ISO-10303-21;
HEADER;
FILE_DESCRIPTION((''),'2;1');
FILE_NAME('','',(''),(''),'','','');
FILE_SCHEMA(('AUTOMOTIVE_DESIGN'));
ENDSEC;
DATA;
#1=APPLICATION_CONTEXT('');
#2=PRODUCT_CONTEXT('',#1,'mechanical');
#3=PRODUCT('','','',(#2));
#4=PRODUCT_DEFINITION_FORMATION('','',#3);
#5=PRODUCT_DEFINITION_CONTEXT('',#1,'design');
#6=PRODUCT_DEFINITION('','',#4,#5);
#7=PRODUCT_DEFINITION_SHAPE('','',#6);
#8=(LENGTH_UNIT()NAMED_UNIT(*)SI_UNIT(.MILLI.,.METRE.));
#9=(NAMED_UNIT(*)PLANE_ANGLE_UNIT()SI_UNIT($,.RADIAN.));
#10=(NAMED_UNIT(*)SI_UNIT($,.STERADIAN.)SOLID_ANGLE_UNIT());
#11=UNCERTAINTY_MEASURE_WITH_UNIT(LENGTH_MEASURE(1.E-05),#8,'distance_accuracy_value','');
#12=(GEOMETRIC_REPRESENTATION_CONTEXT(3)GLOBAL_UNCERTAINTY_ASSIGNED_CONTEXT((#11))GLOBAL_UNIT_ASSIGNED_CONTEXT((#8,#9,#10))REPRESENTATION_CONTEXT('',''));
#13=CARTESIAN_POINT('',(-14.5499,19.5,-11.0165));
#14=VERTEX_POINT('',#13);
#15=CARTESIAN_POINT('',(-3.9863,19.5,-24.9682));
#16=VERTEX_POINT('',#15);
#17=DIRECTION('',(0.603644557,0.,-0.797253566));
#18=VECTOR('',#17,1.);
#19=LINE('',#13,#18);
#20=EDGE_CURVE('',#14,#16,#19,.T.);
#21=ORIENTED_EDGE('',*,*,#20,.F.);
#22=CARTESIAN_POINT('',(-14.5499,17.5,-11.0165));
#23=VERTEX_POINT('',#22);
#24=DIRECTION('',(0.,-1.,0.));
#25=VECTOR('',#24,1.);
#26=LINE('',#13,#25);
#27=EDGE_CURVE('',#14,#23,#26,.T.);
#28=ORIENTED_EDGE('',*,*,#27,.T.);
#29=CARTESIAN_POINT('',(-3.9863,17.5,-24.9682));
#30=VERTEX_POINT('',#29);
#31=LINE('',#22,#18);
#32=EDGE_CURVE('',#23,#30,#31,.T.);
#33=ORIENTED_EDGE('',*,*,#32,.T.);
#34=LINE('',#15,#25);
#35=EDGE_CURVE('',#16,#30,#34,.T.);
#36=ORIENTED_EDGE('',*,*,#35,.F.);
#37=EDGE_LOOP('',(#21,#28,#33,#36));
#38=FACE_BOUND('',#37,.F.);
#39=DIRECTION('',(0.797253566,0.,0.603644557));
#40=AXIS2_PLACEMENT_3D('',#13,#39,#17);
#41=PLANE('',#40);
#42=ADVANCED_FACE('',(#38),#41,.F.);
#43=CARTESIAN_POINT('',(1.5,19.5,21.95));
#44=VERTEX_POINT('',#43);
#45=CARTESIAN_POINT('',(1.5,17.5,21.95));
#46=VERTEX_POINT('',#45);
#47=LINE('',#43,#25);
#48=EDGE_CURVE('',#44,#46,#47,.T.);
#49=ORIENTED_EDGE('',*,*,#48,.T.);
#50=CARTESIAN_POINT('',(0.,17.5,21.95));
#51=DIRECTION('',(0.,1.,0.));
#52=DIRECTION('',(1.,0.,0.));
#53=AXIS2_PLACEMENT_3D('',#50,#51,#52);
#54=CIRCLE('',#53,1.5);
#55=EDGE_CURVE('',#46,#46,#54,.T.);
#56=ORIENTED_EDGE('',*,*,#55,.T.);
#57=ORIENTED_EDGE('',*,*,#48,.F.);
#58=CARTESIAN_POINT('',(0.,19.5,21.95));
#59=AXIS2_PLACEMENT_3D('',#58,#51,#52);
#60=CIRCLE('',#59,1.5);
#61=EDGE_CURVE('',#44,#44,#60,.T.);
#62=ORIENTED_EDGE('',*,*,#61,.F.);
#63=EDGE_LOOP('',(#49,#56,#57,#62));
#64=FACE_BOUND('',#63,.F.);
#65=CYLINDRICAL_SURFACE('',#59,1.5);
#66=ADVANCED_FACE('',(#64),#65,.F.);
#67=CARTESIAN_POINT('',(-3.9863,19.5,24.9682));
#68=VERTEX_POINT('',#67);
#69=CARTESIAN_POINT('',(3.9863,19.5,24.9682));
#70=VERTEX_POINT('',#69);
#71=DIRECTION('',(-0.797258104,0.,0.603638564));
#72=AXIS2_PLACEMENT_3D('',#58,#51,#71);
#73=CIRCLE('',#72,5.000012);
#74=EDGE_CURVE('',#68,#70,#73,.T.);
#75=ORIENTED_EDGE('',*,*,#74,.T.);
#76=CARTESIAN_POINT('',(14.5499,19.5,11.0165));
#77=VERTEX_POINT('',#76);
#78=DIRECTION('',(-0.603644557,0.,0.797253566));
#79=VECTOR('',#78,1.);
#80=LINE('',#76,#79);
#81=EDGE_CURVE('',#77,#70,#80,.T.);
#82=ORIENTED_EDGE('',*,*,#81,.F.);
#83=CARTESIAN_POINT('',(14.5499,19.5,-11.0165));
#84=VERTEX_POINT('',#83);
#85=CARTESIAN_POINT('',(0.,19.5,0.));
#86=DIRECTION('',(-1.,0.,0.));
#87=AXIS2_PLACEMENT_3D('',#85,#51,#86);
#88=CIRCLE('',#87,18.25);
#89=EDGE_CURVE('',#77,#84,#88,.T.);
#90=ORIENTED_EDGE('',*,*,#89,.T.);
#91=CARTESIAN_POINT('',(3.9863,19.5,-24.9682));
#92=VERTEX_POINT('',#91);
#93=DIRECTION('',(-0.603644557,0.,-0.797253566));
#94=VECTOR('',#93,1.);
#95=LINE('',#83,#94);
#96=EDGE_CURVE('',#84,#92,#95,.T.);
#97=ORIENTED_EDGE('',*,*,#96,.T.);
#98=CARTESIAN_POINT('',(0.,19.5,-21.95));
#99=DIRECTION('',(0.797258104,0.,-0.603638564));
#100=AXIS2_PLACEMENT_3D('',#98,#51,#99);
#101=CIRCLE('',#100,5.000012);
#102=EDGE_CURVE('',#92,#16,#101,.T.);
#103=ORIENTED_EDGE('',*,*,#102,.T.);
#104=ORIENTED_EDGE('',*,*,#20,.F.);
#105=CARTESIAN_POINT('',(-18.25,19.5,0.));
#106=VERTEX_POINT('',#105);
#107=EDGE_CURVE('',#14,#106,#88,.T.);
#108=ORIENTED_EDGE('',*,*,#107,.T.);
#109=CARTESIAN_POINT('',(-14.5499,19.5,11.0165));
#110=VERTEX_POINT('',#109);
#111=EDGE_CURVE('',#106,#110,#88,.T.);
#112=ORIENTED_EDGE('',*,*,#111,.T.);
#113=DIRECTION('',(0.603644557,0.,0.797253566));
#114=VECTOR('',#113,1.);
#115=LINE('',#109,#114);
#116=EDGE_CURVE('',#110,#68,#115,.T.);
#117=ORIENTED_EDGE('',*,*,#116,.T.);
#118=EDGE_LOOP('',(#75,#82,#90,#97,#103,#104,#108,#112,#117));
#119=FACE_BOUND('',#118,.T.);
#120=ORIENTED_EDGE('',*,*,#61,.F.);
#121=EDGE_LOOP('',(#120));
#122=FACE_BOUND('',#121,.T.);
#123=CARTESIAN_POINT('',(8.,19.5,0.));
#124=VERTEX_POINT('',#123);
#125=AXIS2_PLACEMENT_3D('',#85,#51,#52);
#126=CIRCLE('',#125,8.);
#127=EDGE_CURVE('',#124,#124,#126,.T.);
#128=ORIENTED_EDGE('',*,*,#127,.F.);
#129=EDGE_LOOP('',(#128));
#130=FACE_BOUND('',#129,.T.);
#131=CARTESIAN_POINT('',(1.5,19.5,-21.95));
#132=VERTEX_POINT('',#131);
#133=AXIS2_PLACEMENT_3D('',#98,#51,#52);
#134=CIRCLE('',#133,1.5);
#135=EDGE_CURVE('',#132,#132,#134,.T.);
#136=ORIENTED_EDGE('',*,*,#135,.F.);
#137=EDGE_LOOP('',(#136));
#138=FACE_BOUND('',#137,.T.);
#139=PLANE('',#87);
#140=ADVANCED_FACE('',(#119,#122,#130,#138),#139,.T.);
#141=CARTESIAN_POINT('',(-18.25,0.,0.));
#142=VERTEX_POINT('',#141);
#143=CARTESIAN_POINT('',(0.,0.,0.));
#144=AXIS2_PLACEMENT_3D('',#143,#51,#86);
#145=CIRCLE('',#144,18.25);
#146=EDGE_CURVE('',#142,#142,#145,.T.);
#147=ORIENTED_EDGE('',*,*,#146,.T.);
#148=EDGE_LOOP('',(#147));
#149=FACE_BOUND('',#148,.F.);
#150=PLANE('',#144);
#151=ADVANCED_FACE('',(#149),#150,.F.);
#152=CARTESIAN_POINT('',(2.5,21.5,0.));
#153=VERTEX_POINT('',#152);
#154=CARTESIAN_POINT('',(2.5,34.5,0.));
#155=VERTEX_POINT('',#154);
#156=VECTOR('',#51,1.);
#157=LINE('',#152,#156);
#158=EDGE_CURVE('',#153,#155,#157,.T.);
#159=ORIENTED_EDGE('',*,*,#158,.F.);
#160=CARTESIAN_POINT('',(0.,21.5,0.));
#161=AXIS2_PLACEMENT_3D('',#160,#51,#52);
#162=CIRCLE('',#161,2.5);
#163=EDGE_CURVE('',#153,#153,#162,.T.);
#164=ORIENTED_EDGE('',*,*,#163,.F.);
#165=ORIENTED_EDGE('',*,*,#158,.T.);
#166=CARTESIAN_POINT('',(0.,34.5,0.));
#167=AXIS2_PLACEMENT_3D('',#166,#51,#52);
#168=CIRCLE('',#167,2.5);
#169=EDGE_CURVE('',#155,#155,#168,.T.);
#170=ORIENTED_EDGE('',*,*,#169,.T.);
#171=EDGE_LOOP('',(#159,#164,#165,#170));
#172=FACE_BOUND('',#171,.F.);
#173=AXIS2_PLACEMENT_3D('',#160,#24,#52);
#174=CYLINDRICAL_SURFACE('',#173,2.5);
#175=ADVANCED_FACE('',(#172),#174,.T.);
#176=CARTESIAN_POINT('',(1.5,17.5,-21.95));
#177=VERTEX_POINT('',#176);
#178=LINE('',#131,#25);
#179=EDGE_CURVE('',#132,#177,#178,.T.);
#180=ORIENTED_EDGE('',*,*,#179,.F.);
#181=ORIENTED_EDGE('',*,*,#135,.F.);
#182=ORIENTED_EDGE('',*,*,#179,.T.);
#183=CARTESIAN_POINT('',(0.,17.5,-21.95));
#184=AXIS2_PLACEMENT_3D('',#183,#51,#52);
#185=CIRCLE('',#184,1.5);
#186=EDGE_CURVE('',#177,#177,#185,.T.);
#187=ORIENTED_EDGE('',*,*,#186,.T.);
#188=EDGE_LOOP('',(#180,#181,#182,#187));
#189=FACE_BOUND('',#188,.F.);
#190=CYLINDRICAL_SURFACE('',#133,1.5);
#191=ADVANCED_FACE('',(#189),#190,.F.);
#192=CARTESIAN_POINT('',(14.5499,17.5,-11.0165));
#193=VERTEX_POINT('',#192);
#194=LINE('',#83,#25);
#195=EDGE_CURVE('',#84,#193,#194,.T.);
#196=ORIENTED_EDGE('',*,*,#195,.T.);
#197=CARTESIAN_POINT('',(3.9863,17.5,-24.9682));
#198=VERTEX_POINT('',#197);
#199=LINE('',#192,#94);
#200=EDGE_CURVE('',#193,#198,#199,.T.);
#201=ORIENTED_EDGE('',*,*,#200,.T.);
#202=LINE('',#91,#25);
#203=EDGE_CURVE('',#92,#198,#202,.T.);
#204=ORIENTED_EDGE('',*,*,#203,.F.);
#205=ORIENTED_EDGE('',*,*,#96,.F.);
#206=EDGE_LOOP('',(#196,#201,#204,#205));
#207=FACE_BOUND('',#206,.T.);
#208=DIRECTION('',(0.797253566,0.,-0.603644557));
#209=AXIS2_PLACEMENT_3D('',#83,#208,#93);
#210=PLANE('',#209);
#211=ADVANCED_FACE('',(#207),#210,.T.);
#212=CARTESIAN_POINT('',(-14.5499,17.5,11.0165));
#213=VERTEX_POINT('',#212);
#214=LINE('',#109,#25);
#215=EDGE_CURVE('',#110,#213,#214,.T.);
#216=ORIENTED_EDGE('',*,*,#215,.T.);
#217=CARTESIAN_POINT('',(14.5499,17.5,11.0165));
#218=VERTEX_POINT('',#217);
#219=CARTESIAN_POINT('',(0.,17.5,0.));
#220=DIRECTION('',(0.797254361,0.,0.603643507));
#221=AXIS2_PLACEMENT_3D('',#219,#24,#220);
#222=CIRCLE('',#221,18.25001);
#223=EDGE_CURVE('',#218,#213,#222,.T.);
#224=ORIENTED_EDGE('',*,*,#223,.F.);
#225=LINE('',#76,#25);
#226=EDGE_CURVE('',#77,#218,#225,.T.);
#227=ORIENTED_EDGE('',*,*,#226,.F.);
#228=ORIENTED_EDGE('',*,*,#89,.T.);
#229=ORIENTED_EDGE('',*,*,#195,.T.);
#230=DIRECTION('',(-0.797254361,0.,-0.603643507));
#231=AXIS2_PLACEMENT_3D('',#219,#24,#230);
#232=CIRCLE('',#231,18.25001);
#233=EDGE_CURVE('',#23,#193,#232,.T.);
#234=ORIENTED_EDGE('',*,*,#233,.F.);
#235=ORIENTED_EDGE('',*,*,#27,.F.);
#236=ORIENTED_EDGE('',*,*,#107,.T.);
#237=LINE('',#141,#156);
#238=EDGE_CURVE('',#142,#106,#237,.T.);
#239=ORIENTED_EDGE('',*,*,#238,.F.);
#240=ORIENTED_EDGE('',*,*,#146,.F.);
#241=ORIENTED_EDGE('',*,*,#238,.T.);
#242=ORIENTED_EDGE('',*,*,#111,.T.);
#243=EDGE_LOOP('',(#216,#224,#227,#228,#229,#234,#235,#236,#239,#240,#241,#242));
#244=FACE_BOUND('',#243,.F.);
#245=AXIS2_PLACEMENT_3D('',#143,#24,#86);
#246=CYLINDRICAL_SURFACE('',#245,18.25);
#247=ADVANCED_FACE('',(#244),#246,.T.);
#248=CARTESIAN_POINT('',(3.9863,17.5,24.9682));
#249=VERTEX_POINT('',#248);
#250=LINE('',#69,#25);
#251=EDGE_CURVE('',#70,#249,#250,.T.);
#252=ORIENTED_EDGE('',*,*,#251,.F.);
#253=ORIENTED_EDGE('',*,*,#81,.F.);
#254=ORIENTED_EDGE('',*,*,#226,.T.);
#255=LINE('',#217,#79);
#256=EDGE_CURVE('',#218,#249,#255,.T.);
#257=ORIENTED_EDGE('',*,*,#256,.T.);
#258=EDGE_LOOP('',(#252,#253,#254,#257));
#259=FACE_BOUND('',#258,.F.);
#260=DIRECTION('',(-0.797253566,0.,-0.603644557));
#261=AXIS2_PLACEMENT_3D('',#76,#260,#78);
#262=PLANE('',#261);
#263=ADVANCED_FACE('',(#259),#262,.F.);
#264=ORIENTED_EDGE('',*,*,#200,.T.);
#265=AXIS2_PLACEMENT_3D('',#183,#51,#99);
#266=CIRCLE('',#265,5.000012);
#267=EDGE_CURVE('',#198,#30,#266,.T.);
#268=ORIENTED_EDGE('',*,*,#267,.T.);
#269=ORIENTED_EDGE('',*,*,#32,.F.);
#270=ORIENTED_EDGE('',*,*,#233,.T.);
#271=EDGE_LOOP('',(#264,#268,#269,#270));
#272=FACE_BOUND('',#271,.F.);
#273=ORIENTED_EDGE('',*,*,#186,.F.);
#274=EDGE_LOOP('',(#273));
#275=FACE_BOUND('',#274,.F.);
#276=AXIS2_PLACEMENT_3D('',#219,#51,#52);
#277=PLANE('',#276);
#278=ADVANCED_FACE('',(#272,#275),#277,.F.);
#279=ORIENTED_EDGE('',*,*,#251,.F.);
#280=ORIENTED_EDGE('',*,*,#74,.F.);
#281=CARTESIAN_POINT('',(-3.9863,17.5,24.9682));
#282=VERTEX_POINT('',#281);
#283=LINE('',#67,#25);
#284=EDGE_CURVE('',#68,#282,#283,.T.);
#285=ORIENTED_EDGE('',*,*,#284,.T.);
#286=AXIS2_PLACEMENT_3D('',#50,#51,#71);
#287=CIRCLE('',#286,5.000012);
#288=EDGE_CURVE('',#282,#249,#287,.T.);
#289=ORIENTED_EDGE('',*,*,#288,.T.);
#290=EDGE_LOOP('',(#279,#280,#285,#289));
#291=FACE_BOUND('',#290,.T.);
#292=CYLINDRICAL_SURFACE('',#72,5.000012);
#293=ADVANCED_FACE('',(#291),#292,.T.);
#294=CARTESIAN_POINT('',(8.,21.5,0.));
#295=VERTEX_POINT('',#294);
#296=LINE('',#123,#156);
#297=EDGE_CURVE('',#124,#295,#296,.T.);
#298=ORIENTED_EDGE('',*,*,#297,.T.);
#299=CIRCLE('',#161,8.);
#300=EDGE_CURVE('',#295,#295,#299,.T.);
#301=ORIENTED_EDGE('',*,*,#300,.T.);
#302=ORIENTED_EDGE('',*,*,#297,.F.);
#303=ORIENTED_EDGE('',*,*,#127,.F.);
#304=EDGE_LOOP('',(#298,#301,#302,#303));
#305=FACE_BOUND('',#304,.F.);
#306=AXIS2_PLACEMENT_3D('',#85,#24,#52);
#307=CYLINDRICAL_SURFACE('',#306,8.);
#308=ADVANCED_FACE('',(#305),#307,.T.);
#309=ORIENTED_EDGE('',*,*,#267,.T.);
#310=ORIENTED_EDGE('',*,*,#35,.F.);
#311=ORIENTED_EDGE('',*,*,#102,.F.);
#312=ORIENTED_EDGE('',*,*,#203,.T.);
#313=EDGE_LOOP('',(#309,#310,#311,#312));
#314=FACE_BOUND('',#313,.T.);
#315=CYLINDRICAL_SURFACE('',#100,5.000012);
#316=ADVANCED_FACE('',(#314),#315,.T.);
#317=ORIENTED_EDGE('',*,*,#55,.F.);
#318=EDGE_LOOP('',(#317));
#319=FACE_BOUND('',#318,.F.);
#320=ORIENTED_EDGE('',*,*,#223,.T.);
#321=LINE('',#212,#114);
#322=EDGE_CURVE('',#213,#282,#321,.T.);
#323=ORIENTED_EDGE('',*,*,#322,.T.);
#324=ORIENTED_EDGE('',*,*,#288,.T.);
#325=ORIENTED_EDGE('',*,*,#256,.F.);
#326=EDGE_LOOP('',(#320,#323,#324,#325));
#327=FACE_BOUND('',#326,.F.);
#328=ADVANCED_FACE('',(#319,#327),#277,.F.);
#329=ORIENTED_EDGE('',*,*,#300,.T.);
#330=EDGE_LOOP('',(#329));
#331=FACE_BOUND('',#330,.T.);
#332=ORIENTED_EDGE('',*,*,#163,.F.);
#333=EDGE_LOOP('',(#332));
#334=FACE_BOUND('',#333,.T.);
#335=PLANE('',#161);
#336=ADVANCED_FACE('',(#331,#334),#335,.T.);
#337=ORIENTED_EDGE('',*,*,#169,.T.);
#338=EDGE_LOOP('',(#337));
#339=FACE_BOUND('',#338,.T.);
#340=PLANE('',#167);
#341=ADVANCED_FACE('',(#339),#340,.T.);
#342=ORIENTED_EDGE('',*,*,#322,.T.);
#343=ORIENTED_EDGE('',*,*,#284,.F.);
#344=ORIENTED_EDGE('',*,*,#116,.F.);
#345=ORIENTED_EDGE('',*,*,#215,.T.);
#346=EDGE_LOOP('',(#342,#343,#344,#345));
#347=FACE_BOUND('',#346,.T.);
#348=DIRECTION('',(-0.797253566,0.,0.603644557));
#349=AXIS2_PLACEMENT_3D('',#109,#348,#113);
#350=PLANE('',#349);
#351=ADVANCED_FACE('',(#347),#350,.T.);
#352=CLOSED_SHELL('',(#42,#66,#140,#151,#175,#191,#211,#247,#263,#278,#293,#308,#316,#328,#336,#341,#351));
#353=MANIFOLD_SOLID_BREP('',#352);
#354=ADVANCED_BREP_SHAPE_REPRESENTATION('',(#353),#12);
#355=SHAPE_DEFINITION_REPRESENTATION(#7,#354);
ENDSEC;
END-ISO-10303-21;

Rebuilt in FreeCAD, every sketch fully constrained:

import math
import FreeCAD as App
import Part
import Sketcher
Q = App.Units.Quantity

doc = App.newDocument("Part")
params = doc.addObject("Spreadsheet::Sheet", "Params")
for row, (alias, value) in enumerate([
    ("sketch1_diameter", "36.5 mm"),
    ("pad1_length", "19.5 mm"),
    ("sketch2_diameter", "16 mm"),
    ("pad2_length", "2 mm"),
    ("sketch3_diameter", "3 mm"),
    ("sketch3_radius", "5 mm"),
    ("sketch3_radius2", "18.25 mm"),
    ("pad3_length", "2 mm"),
    ("sketch4_diameter", "5 mm"),
    ("pad4_length", "13 mm"),
], start=1):
    params.set(f"A{row}", alias)
    params.set(f"B{row}", "=" + value)
    params.setAlias(f"B{row}", alias)

body = doc.addObject("PartDesign::Body", "Body")

# Sketch on XZ plane
sketch1 = body.newObject("Sketcher::SketchObject", "Sketch")
sketch1.AttachmentSupport = (doc.getObject("XZ_Plane"), [""])
sketch1.MapMode = "FlatFace"
sketch1.addGeometry(Part.Circle(App.Vector(0, 0, 0), App.Vector(0, 0, 1), 18.25), False)
sketch1.addConstraint(Sketcher.Constraint("Coincident", 0, 3, -1, 1))
sketch1.addConstraint(Sketcher.Constraint("Diameter", 0, Q("36.5 mm")))
sketch1.setExpression("Constraints[1]", "Params.sketch1_diameter")
pad1 = body.newObject("PartDesign::Pad", "Pad")
pad1.Profile = sketch1
pad1.setExpression("Length", "Params.pad1_length")
pad1.Reversed = True

# Sketch on XZ plane
sketch2 = body.newObject("Sketcher::SketchObject", "Sketch001")
sketch2.AttachmentSupport = (doc.getObject("XZ_Plane"), [""])
sketch2.MapMode = "FlatFace"
sketch2.AttachmentOffset = App.Placement(App.Vector(0, 0, -19.5), App.Rotation())
sketch2.addGeometry(Part.Circle(App.Vector(0, 0, 0), App.Vector(0, 0, 1), 8), False)
sketch2.addConstraint(Sketcher.Constraint("Coincident", 0, 3, -1, 1))
sketch2.addConstraint(Sketcher.Constraint("Diameter", 0, Q("16 mm")))
sketch2.setExpression("Constraints[1]", "Params.sketch2_diameter")
pad2 = body.newObject("PartDesign::Pad", "Pad001")
pad2.Profile = sketch2
pad2.setExpression("Length", "Params.pad2_length")
pad2.Reversed = True

# Sketch on XZ plane
sketch3 = body.newObject("Sketcher::SketchObject", "Sketch002")
sketch3.AttachmentSupport = (doc.getObject("XZ_Plane"), [""])
sketch3.MapMode = "FlatFace"
sketch3.AttachmentOffset = App.Placement(App.Vector(0, 0, -19.5), App.Rotation())
sketch3.addGeometry(Part.LineSegment(App.Vector(14.5499, -11.0165, 0), App.Vector(3.9863, -24.9682, 0)), False)
sketch3.addGeometry(Part.ArcOfCircle(Part.Circle(App.Vector(0, -21.95, 0), App.Vector(0, 0, 1), 5.000012), math.radians(-142.869063), math.radians(-37.130937)), False)
sketch3.addGeometry(Part.LineSegment(App.Vector(-3.9863, -24.9682, 0), App.Vector(-14.5499, -11.0165, 0)), False)
sketch3.addGeometry(Part.ArcOfCircle(Part.Circle(App.Vector(0, 0, 0), App.Vector(0, 0, 1), 18.25001), math.radians(-142.868707), math.radians(-37.131293)), False)
sketch3.addGeometry(Part.Circle(App.Vector(0, -21.95, 0), App.Vector(0, 0, 1), 1.5), False)
sketch3.addGeometry(Part.ArcOfCircle(Part.Circle(App.Vector(0, 0, 0), App.Vector(0, 0, 1), 18.25001), math.radians(37.131293), math.radians(142.868707)), False)
sketch3.addGeometry(Part.LineSegment(App.Vector(-14.5499, 11.0165, 0), App.Vector(-3.9863, 24.9682, 0)), False)
sketch3.addGeometry(Part.ArcOfCircle(Part.Circle(App.Vector(0, 21.95, 0), App.Vector(0, 0, 1), 5.000012), math.radians(37.130937), math.radians(142.869063)), False)
sketch3.addGeometry(Part.LineSegment(App.Vector(3.9863, 24.9682, 0), App.Vector(14.5499, 11.0165, 0)), False)
sketch3.addGeometry(Part.Circle(App.Vector(0, 21.95, 0), App.Vector(0, 0, 1), 1.5), False)
sketch3.addConstraint(Sketcher.Constraint("Tangent", 0, 2, 1, 2))
sketch3.addConstraint(Sketcher.Constraint("Tangent", 1, 1, 2, 1))
sketch3.addConstraint(Sketcher.Constraint("Tangent", 2, 2, 3, 1))
sketch3.addConstraint(Sketcher.Constraint("Tangent", 3, 2, 0, 1))
sketch3.addConstraint(Sketcher.Constraint("Tangent", 5, 2, 6, 1))
sketch3.addConstraint(Sketcher.Constraint("Tangent", 6, 2, 7, 2))
sketch3.addConstraint(Sketcher.Constraint("Tangent", 7, 1, 8, 1))
sketch3.addConstraint(Sketcher.Constraint("Tangent", 8, 2, 5, 1))
sketch3.addConstraint(Sketcher.Constraint("Coincident", 3, 3, -1, 1))
sketch3.addConstraint(Sketcher.Constraint("Coincident", 5, 3, -1, 1))
sketch3.addConstraint(Sketcher.Constraint("Coincident", 4, 3, 1, 3))
sketch3.addConstraint(Sketcher.Constraint("Coincident", 9, 3, 7, 3))
sketch3.addConstraint(Sketcher.Constraint("Equal", 3, 5))
sketch3.addConstraint(Sketcher.Constraint("Equal", 1, 7))
sketch3.addConstraint(Sketcher.Constraint("Equal", 4, 9))
sketch3.addConstraint(Sketcher.Constraint("Symmetric", 1, 3, 7, 3, -1, 1))
sketch3.addConstraint(Sketcher.Constraint("PointOnObject", 1, 3, -2))
sketch3.addConstraint(Sketcher.Constraint("Diameter", 4, Q("3 mm")))
sketch3.addConstraint(Sketcher.Constraint("Radius", 1, Q("5 mm")))
sketch3.addConstraint(Sketcher.Constraint("Radius", 3, Q("18.25 mm")))
sketch3.addConstraint(Sketcher.Constraint("DistanceY", 1, 3, 7, 3, Q("43.9 mm")))
sketch3.setExpression("Constraints[17]", "Params.sketch3_diameter")
sketch3.setExpression("Constraints[18]", "Params.sketch3_radius")
sketch3.setExpression("Constraints[19]", "Params.sketch3_radius2")
pad3 = body.newObject("PartDesign::Pad", "Pad002")
pad3.Profile = sketch3
pad3.setExpression("Length", "Params.pad3_length")

# Sketch on XZ plane
sketch4 = body.newObject("Sketcher::SketchObject", "Sketch003")
sketch4.AttachmentSupport = (doc.getObject("XZ_Plane"), [""])
sketch4.MapMode = "FlatFace"
sketch4.AttachmentOffset = App.Placement(App.Vector(0, 0, -21.5), App.Rotation())
sketch4.addGeometry(Part.Circle(App.Vector(0, 0, 0), App.Vector(0, 0, 1), 2.5), False)
sketch4.addConstraint(Sketcher.Constraint("Coincident", 0, 3, -1, 1))
sketch4.addConstraint(Sketcher.Constraint("Diameter", 0, Q("5 mm")))
sketch4.setExpression("Constraints[1]", "Params.sketch4_diameter")
pad4 = body.newObject("PartDesign::Pad", "Pad003")
pad4.Profile = sketch4
pad4.setExpression("Length", "Params.pad4_length")
pad4.Reversed = True

doc.recompute()
